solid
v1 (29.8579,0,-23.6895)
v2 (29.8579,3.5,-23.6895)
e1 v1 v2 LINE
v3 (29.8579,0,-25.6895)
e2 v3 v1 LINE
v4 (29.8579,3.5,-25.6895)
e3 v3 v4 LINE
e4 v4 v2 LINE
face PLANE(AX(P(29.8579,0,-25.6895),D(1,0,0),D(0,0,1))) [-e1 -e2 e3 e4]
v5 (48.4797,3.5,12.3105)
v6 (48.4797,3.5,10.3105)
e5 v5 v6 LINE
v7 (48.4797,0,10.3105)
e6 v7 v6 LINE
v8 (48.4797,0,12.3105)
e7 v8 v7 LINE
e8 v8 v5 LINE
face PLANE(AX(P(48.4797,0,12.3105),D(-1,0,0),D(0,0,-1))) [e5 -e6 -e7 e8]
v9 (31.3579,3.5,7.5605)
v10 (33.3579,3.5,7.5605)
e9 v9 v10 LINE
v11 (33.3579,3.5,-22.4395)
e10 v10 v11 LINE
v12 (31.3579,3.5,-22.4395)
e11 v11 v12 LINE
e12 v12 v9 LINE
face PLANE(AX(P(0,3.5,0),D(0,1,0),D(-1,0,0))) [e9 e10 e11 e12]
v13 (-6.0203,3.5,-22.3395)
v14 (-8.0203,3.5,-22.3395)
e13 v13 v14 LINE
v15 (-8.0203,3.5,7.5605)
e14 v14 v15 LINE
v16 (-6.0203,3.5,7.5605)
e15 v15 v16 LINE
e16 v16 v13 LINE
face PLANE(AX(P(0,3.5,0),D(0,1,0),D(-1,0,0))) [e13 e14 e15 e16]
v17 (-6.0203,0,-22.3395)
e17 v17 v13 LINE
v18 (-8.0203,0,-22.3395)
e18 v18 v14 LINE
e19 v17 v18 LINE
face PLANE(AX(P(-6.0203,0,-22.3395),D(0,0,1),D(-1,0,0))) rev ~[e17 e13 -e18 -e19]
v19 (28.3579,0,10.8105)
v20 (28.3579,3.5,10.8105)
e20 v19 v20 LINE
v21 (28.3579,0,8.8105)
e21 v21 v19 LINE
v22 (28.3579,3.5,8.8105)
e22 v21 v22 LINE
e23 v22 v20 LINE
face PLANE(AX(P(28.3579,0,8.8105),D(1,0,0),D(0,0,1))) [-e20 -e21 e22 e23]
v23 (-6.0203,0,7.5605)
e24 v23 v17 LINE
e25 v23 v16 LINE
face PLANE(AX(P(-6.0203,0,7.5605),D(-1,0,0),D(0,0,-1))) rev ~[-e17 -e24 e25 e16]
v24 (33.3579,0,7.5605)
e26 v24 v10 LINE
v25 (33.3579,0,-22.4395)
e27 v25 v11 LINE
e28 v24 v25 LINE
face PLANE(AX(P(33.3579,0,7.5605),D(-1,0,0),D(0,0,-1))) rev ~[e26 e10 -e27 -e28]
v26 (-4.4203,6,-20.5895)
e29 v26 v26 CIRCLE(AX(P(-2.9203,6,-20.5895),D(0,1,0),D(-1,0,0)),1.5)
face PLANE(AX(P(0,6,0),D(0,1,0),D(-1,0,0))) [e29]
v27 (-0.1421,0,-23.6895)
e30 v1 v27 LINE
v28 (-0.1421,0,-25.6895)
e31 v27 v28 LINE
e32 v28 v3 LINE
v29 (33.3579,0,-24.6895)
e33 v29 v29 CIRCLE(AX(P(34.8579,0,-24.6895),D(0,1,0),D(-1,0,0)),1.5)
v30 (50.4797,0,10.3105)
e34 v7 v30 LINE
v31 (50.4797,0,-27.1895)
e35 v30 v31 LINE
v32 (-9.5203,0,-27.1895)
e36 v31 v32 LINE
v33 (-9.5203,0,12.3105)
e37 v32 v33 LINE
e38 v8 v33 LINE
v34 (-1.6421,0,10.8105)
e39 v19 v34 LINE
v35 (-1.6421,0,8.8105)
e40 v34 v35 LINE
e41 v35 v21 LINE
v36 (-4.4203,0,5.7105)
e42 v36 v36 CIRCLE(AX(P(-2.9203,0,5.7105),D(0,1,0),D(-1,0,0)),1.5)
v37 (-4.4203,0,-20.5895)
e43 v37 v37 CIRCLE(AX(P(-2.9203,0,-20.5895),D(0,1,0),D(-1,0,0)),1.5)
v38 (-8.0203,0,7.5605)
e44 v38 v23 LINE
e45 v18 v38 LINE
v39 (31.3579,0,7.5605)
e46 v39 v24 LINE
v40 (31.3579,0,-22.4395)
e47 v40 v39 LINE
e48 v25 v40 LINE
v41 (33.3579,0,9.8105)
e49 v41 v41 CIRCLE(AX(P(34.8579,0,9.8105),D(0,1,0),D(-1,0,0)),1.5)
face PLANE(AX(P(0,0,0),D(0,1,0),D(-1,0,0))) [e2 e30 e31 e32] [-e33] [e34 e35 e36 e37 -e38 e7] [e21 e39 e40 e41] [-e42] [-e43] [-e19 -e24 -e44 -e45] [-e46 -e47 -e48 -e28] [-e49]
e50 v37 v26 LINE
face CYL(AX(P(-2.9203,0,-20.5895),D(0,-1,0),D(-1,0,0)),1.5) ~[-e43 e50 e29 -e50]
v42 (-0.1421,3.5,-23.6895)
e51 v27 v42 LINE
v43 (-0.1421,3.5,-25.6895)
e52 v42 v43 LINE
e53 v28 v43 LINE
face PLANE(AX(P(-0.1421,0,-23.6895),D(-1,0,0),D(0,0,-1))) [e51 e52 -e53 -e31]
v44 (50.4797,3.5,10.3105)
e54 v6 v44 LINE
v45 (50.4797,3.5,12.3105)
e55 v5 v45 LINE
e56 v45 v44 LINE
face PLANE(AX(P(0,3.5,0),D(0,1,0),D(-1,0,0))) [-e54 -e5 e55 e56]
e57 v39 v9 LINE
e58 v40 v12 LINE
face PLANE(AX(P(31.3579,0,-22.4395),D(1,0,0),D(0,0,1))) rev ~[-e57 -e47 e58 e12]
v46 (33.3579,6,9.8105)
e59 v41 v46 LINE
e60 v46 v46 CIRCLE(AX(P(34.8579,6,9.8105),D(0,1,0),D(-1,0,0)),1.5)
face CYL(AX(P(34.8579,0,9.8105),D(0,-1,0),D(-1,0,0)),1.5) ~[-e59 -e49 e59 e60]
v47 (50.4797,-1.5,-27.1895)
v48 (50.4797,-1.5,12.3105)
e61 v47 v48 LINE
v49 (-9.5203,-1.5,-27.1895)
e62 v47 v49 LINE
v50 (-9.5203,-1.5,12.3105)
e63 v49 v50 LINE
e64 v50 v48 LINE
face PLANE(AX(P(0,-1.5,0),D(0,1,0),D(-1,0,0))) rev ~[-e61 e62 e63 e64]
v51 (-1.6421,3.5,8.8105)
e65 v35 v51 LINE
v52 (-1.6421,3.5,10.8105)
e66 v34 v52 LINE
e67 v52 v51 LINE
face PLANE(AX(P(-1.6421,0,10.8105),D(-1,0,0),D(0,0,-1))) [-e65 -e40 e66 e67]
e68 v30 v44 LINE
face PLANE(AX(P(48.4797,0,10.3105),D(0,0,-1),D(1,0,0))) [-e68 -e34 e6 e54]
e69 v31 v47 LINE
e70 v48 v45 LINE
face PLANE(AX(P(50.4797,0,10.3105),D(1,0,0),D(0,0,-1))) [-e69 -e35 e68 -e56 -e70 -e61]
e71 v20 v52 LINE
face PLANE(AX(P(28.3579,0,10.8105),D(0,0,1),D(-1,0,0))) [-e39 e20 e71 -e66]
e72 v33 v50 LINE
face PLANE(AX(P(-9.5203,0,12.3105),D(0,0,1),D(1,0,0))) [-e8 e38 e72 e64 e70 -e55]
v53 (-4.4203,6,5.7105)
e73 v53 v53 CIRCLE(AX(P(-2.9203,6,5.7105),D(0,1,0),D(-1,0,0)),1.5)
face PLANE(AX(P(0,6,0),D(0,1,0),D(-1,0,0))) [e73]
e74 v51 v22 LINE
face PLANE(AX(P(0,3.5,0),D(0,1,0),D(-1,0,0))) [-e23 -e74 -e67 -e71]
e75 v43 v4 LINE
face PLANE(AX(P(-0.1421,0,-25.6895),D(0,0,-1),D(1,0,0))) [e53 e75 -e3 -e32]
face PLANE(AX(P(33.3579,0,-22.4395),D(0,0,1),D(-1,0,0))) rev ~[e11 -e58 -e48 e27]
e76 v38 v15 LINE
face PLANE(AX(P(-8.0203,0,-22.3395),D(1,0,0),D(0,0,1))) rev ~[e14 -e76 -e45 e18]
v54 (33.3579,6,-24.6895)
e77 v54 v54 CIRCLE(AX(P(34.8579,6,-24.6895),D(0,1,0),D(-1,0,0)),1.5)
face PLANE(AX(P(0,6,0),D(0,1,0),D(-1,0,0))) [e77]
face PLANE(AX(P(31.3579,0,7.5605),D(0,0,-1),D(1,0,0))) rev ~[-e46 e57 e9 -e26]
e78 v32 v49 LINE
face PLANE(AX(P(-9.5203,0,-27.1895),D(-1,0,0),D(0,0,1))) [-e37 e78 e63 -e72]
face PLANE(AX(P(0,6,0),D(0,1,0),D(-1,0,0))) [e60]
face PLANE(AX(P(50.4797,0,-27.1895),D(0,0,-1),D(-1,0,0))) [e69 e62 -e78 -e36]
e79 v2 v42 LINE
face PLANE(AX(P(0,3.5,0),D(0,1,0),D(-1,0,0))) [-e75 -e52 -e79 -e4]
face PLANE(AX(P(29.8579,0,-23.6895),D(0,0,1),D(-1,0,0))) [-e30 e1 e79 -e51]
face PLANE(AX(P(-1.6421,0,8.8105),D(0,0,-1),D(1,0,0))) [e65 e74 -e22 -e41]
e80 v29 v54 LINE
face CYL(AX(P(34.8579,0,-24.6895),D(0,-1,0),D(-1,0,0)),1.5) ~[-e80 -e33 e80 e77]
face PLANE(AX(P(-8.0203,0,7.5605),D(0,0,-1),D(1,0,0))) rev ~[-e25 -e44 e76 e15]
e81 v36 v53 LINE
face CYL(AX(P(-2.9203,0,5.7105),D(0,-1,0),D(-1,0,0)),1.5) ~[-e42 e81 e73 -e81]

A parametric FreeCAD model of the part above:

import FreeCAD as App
import Part
import Sketcher


def add_polygon(sketch, points):
    """Adds a closed chain of lines whose ends are joined by coincident constraints."""
    first, n = sketch.GeometryCount, len(points)
    for a, b in zip(points, points[1:] + points[:1]):
        sketch.addGeometry(Part.LineSegment(App.Vector(*a, 0), App.Vector(*b, 0)), False)
    for i in range(n):
        sketch.addConstraint(Sketcher.Constraint("Coincident", first + i, 2, first + (i + 1) % n, 1))

doc = App.newDocument("Part")
params = doc.addObject("Spreadsheet::Sheet", "Params")
for row, (alias, value) in enumerate([
    ("sketch1_width", "60 mm"),
    ("sketch1_height", "39.5 mm"),
    ("pad1_length", "1.5 mm"),
    ("sketch2_width", "2 mm"),
    ("sketch2_width2", "30 mm"),
    ("sketch2_height", "29.9 mm"),
    ("pad2_length", "3.5 mm"),
    ("sketch3_diameter", "3 mm"),
    ("pad3_length", "6 mm"),
], start=1):
    params.set(f"A{row}", alias)
    params.set(f"B{row}", "=" + value)
    params.setAlias(f"B{row}", alias)

body = doc.addObject("PartDesign::Body", "Body")

sketch1 = doc.addObject("Sketcher::SketchObject", "Sketch")
body.addObject(sketch1)
sketch1.AttachmentSupport = (doc.XZ_Plane, [""])
sketch1.MapMode = "FlatFace"
add_polygon(sketch1, [(-9.5203, -27.1895), (-9.5203, 12.3105), (50.4797, 12.3105), (50.4797, -27.1895)])
sketch1.addConstraint([
    Sketcher.Constraint("Vertical", 0),
    Sketcher.Constraint("Horizontal", 1),
    Sketcher.Constraint("Vertical", 2),
    Sketcher.Constraint("Horizontal", 3),
    Sketcher.Constraint("DistanceX", 1, 1, 1, 2, 60.0),
    Sketcher.Constraint("DistanceY", 0, 1, 0, 2, 39.5),
    Sketcher.Constraint("DistanceX", 0, 2, -1, 1, 9.5203),
    Sketcher.Constraint("DistanceY", -1, 1, 0, 2, 12.3105),
])
sketch1.setExpression("Constraints[8]", "Params.sketch1_width")
sketch1.setExpression("Constraints[9]", "Params.sketch1_height")
pad1 = doc.addObject("PartDesign::Pad", "Pad")
body.addObject(pad1)
pad1.Profile = sketch1
pad1.setExpression("Length", "Params.pad1_length")

sketch2 = doc.addObject("Sketcher::SketchObject", "Sketch001")
body.addObject(sketch2)
sketch2.AttachmentSupport = (doc.XZ_Plane, [""])
sketch2.MapMode = "FlatFace"
add_polygon(sketch2, [(48.4797, 10.3105), (48.4797, 12.3105), (50.4797, 12.3105), (50.4797, 10.3105)])
add_polygon(sketch2, [(33.3579, 7.5605), (33.3579, -22.4395), (31.3579, -22.4395), (31.3579, 7.5605)])
add_polygon(sketch2, [(-8.0203, -22.3395), (-8.0203, 7.5605), (-6.0203, 7.5605), (-6.0203, -22.3395)])
add_polygon(sketch2, [(-1.6421, 10.8105), (28.3579, 10.8105), (28.3579, 8.8105), (-1.6421, 8.8105)])
add_polygon(sketch2, [(-0.1421, -23.6895), (29.8579, -23.6895), (29.8579, -25.6895), (-0.1421, -25.6895)])
sketch2.addConstraint([
    Sketcher.Constraint("Vertical", 0),
    Sketcher.Constraint("Horizontal", 1),
    Sketcher.Constraint("Vertical", 2),
    Sketcher.Constraint("Horizontal", 3),
    Sketcher.Constraint("Vertical", 4),
    Sketcher.Constraint("Horizontal", 5),
    Sketcher.Constraint("Vertical", 6),
    Sketcher.Constraint("Horizontal", 7),
    Sketcher.Constraint("Vertical", 8),
    Sketcher.Constraint("Horizontal", 9),
    Sketcher.Constraint("Vertical", 10),
    Sketcher.Constraint("Horizontal", 11),
    Sketcher.Constraint("Horizontal", 12),
    Sketcher.Constraint("Vertical", 13),
    Sketcher.Constraint("Horizontal", 14),
    Sketcher.Constraint("Vertical", 15),
    Sketcher.Constraint("Horizontal", 16),
    Sketcher.Constraint("Vertical", 17),
    Sketcher.Constraint("Horizontal", 18),
    Sketcher.Constraint("Vertical", 19),
    Sketcher.Constraint("Horizontal", 7, 2, 8, 2),
    Sketcher.Constraint("Equal", 3, 5),
    Sketcher.Constraint("Equal", 7, 9),
    Sketcher.Constraint("Equal", 14, 16),
    Sketcher.Constraint("Equal", 11, 0),
    Sketcher.Constraint("Equal", 18, 4),
    Sketcher.Constraint("Equal", 2, 13),
    Sketcher.Constraint("Equal", 15, 17),
    Sketcher.Constraint("DistanceX", 1, 1, 1, 2, 2.0),
    Sketcher.Constraint("DistanceX", 12, 1, 12, 2, 30.0),
    Sketcher.Constraint("DistanceX", 12, 2, 6, 2, 3.0),
    Sketcher.Constraint("DistanceY", 12, 2, 0, 2, 1.5),
    Sketcher.Constraint("DistanceX", 16, 2, 5, 2, 1.5),
    Sketcher.Constraint("DistanceY", 6, 2, 0, 2, 4.75),
    Sketcher.Constraint("DistanceY", 8, 1, 8, 2, 29.9),
    Sketcher.Constraint("DistanceX", 8, 2, 3, 2, 56.5),
    Sketcher.Constraint("DistanceY", 16, 2, 13, 2, 32.5),
    Sketcher.Constraint("DistanceX", -1, 1, 4, 2, 33.358),
    Sketcher.Constraint("DistanceX", -1, 1, 0, 2, 48.4797),
    Sketcher.Constraint("DistanceY", -1, 1, 0, 2, 12.3105),
])
sketch2.setExpression("Constraints[48]", "Params.sketch2_width")
sketch2.setExpression("Constraints[49]", "Params.sketch2_width2")
sketch2.setExpression("Constraints[54]", "Params.sketch2_height")
pad2 = doc.addObject("PartDesign::Pad", "Pad001")
body.addObject(pad2)
pad2.Profile = sketch2
pad2.setExpression("Length", "Params.pad2_length")
pad2.Reversed = True

sketch3 = doc.addObject("Sketcher::SketchObject", "Sketch002")
body.addObject(sketch3)
sketch3.AttachmentSupport = (doc.XZ_Plane, [""])
sketch3.MapMode = "FlatFace"
sketch3.addGeometry([
    Part.Circle(App.Vector(-2.9203, -20.5895, 0), App.Vector(0, 0, 1), 1.5),
    Part.Circle(App.Vector(-2.9203, 5.7105, 0), App.Vector(0, 0, 1), 1.5),
    Part.Circle(App.Vector(34.8579, -24.6895, 0), App.Vector(0, 0, 1), 1.5),
    Part.Circle(App.Vector(34.8579, 9.8105, 0), App.Vector(0, 0, 1), 1.5),
], False)
sketch3.addConstraint([
    Sketcher.Constraint("Equal", 0, 1),
    Sketcher.Constraint("Equal", 1, 2),
    Sketcher.Constraint("Equal", 2, 3),
    Sketcher.Constraint("Vertical", 0, 3, 1, 3),
    Sketcher.Constraint("Vertical", 2, 3, 3, 3),
    Sketcher.Constraint("Diameter", 0, 3.0),
    Sketcher.Constraint("DistanceY", 0, 3, 1, 3, 26.3),
    Sketcher.Constraint("DistanceY", 2, 3, 0, 3, 4.1),
    Sketcher.Constraint("DistanceY", 2, 3, 3, 3, 34.5),
    Sketcher.Constraint("DistanceX", -1, 1, 2, 3, 34.858),
    Sketcher.Constraint("DistanceX", 0, 3, -1, 1, 2.9203),
    Sketcher.Constraint("DistanceY", 0, 3, -1, 1, 20.5895),
])
sketch3.setExpression("Constraints[5]", "Params.sketch3_diameter")
pad3 = doc.addObject("PartDesign::Pad", "Pad002")
body.addObject(pad3)
pad3.Profile = sketch3
pad3.setExpression("Length", "Params.pad3_length")
pad3.Reversed = True

doc.recompute()
